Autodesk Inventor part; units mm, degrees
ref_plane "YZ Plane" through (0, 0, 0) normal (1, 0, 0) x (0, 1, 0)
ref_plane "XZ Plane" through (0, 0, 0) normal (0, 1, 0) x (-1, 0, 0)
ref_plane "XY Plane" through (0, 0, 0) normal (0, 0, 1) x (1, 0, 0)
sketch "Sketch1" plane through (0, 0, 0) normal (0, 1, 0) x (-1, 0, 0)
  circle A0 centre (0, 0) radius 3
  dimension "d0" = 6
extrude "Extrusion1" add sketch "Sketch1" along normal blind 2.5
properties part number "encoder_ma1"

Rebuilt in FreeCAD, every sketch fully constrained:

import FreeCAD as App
import Part
import Sketcher
Q = App.Units.Quantity

doc = App.newDocument("Part")
body = doc.addObject("PartDesign::Body", "Body")

sketch1 = body.newObject("Sketcher::SketchObject", "Sketch")
sketch1.AttachmentSupport = (doc.getObject("XZ_Plane"), [""])
sketch1.MapMode = "FlatFace"
sketch1.addGeometry(Part.Circle(App.Vector(0, 0, 0), App.Vector(0, 0, 1), 3), False)
sketch1.addConstraint(Sketcher.Constraint("Coincident", 0, 3, -1, 1))
sketch1.addConstraint(Sketcher.Constraint("Diameter", 0, Q("6 mm")))
pad1 = body.newObject("PartDesign::Pad", "Pad")
pad1.Profile = sketch1
pad1.Length = 2.5
pad1.Reversed = True

doc.recompute()
